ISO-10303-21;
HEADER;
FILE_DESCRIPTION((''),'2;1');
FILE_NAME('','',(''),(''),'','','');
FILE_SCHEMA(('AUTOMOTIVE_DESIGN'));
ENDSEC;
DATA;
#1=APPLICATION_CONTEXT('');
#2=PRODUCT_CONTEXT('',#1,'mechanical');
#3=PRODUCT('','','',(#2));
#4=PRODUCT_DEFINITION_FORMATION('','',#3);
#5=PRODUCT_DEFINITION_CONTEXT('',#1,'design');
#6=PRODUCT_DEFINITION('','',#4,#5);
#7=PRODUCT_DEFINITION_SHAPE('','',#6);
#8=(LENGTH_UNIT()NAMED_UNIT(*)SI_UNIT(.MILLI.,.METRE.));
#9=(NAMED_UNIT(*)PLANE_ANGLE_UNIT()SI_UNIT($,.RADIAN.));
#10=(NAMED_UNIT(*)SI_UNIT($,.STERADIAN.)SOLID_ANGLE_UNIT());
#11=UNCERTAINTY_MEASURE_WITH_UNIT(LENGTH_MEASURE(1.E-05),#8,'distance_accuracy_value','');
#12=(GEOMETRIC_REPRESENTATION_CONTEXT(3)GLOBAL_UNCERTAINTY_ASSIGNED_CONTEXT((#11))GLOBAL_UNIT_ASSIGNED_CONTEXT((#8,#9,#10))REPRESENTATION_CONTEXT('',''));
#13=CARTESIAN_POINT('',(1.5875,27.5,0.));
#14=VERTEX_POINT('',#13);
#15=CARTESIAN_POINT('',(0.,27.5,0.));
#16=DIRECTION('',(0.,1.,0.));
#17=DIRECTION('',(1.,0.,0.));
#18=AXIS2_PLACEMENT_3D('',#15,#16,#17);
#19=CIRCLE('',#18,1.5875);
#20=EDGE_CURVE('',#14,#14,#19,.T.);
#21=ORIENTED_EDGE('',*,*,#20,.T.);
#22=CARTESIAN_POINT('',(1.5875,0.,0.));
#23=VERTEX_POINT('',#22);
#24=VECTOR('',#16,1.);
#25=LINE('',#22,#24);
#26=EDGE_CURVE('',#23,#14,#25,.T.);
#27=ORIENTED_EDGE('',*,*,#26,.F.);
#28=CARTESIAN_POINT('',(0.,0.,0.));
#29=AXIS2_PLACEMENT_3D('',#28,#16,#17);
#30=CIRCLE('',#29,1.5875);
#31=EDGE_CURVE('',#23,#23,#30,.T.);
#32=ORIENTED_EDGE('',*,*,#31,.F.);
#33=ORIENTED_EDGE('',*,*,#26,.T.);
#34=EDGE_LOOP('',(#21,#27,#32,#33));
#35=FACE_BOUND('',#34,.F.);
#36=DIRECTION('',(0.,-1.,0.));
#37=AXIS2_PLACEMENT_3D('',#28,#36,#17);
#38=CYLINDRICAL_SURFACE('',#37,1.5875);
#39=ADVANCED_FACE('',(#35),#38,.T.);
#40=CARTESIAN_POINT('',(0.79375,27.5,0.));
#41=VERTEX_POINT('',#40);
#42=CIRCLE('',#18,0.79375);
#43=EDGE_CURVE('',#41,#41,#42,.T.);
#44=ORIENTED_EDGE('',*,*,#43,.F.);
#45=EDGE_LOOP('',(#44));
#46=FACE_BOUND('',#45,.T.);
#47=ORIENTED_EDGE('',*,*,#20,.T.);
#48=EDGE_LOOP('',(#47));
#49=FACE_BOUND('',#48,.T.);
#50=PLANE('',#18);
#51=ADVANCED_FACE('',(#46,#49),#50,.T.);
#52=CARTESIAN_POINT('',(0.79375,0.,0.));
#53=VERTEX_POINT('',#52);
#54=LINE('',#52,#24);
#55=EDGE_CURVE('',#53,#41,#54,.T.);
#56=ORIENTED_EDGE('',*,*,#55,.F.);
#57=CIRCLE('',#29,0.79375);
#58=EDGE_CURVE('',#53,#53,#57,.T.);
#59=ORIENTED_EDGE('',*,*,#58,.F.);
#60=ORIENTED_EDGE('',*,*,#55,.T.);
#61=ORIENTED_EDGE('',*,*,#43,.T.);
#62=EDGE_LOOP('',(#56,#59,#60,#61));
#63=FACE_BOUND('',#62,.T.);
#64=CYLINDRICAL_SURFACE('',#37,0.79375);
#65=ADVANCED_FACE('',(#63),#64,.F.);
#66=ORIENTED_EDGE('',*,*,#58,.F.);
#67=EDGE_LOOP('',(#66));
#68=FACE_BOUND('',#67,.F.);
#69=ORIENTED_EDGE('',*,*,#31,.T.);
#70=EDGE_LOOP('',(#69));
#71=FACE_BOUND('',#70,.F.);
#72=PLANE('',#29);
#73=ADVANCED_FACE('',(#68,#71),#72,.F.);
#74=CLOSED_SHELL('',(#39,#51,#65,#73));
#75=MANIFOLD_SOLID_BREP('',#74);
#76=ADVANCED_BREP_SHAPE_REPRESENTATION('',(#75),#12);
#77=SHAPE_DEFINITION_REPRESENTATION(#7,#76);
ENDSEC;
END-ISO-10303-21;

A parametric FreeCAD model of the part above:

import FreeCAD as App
import Part
import Sketcher
from FreeCAD import Vector
Q = App.Units.Quantity

doc = App.newDocument("Part")
body = doc.addObject("PartDesign::Body", "Body")

sketch1 = body.newObject("Sketcher::SketchObject", "Sketch")
sketch1.AttachmentSupport = (doc.getObject("XZ_Plane"), [""])
sketch1.MapMode = "FlatFace"
sketch1.addGeometry([
    Part.Circle(Vector(0, 0, 0), Vector(0, 0, 1), 1.6),
    Part.Circle(Vector(0, 0, 0), Vector(0, 0, 1), 0.8),
], False)
sketch1.addConstraint([
    Sketcher.Constraint("Coincident", 0, 3, -1, 1),
    Sketcher.Constraint("Coincident", 1, 3, -1, 1),
    Sketcher.Constraint("Diameter", 0, Q("0.125 in")),
    Sketcher.Constraint("Diameter", 1, Q("0.0625 in")),
])
pad1 = body.newObject("PartDesign::Pad", "Pad")
pad1.Profile = sketch1
pad1.Length = 27.5
pad1.Reversed = True

doc.recompute()
